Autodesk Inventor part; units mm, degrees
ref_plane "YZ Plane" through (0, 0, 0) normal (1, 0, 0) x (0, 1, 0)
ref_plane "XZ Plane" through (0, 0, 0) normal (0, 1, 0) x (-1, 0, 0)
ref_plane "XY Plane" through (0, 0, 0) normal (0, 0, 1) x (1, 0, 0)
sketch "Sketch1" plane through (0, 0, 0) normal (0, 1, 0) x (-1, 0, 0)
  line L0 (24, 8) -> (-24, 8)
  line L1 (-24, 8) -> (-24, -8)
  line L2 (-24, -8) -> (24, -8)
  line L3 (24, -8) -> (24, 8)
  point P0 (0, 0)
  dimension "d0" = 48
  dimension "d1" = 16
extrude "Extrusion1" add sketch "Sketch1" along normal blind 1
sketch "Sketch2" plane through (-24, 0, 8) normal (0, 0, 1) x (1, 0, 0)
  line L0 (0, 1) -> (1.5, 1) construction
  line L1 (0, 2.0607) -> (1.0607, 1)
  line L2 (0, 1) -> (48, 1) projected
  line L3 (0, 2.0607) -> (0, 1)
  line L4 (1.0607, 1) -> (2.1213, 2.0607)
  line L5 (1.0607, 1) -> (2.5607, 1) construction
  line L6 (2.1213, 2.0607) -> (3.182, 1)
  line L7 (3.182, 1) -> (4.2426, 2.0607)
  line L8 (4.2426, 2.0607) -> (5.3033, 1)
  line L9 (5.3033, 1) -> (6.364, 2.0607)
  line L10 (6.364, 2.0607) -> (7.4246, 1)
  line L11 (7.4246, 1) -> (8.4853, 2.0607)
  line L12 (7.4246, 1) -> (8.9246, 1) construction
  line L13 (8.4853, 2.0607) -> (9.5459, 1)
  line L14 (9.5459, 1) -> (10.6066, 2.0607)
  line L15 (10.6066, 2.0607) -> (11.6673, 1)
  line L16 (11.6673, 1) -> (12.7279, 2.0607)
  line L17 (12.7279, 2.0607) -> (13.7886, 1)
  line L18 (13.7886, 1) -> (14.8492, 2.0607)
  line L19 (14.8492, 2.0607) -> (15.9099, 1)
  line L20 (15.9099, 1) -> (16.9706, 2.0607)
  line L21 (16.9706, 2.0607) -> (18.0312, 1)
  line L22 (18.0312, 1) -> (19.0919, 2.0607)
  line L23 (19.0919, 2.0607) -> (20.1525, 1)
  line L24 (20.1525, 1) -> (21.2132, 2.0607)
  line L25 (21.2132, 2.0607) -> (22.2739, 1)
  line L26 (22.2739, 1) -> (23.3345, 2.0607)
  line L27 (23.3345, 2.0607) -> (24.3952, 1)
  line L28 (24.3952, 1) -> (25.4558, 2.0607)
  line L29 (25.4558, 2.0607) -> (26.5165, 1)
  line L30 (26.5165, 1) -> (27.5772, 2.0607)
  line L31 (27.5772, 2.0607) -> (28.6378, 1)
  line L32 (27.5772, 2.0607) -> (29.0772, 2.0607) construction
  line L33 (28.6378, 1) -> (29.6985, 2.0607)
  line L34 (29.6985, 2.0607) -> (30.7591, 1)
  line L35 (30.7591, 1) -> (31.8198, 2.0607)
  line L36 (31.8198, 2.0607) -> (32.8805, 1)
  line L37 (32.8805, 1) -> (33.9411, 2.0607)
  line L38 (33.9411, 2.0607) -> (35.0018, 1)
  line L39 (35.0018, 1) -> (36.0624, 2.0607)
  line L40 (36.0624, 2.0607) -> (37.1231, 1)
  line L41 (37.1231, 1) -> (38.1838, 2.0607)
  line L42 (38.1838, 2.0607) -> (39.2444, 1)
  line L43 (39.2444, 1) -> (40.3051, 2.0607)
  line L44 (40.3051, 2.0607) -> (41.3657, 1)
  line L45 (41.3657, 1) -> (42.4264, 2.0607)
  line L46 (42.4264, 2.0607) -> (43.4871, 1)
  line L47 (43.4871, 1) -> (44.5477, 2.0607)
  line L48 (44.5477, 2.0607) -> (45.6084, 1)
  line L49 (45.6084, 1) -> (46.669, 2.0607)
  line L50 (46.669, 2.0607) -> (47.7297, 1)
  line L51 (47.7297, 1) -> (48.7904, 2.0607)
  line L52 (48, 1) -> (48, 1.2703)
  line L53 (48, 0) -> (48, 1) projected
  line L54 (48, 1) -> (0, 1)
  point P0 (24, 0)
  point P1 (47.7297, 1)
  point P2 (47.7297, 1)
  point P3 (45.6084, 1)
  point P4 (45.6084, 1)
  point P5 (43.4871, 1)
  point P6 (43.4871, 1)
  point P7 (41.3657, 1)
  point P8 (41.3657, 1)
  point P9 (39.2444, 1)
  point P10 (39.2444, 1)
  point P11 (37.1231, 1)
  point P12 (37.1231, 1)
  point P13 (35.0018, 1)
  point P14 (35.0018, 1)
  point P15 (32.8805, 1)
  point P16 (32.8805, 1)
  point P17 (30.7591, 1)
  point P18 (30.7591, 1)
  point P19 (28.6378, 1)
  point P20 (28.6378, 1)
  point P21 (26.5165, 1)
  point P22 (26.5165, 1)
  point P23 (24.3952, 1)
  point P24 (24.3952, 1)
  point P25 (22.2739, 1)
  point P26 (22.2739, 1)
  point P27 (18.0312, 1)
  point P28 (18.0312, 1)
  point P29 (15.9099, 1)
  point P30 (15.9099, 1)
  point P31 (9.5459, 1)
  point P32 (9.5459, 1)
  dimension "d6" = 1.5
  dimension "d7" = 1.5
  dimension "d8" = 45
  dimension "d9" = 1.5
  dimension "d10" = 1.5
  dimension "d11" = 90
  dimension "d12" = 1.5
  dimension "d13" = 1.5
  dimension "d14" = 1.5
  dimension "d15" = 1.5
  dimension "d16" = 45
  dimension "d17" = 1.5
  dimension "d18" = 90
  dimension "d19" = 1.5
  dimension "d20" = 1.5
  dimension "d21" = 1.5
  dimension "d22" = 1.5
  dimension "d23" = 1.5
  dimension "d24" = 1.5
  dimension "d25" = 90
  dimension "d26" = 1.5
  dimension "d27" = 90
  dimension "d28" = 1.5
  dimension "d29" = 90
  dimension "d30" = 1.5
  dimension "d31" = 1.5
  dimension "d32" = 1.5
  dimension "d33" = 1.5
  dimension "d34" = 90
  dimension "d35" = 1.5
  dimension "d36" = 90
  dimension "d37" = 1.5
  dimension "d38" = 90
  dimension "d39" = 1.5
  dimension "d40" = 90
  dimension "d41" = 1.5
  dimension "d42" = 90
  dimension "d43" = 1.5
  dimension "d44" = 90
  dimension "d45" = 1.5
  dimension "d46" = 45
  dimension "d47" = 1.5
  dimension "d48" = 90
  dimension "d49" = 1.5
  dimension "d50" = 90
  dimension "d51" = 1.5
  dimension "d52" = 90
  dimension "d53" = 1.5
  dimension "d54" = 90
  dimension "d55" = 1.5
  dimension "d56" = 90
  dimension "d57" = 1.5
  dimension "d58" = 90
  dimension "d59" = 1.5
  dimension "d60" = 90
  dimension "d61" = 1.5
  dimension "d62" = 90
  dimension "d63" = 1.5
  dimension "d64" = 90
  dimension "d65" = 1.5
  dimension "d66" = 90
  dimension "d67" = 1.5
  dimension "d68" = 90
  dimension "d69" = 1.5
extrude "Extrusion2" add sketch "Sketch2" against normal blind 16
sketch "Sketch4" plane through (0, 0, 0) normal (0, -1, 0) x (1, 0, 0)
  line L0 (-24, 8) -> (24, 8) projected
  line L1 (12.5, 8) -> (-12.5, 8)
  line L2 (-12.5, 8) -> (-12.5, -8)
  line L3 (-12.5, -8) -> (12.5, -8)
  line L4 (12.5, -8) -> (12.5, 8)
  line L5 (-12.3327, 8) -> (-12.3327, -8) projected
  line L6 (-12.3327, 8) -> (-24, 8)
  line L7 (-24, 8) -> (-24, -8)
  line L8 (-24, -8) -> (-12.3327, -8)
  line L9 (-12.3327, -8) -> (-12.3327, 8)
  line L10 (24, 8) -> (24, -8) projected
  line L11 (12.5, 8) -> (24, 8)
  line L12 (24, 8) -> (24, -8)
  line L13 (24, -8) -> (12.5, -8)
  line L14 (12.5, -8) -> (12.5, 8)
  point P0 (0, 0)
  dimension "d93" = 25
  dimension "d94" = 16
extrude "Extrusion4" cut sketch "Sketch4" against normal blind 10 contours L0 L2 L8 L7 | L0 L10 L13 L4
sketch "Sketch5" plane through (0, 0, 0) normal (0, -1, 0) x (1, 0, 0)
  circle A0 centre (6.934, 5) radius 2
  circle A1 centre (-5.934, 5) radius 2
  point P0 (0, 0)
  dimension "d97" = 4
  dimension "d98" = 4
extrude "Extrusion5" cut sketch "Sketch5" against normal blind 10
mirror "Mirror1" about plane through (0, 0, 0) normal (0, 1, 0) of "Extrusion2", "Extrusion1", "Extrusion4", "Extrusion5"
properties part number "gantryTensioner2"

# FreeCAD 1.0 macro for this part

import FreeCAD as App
import Part
import Sketcher
Q = App.Units.Quantity

doc = App.newDocument("Part")
params = doc.addObject("Spreadsheet::Sheet", "Params")
for row, (alias, value) in enumerate([
    ("sketch1_width", "48 mm"),
    ("sketch1_height", "16 mm"),
    ("pad1_length", "1 mm"),
    ("sketch2_length", "1.5 mm"),
    ("pad2_length", "16 mm"),
    ("sketch3_height", "16 mm"),
    ("sketch3_width", "11.5 mm"),
    ("pocket1_length", "10 mm"),
    ("sketch4_diameter", "4 mm"),
    ("pocket2_length", "10 mm"),
], start=1):
    params.set(f"A{row}", alias)
    params.set(f"B{row}", "=" + value)
    params.setAlias(f"B{row}", alias)

body = doc.addObject("PartDesign::Body", "Body")

# Sketch on XZ plane
sketch1 = body.newObject("Sketcher::SketchObject", "Sketch")
sketch1.AttachmentSupport = (doc.getObject("XZ_Plane"), [""])
sketch1.MapMode = "FlatFace"
sketch1.addGeometry([
    Part.LineSegment(App.Vector(-24, -8, 0), App.Vector(-24, 8, 0)),
    Part.LineSegment(App.Vector(-24, 8, 0), App.Vector(24, 8, 0)),
    Part.LineSegment(App.Vector(24, 8, 0), App.Vector(24, -8, 0)),
    Part.LineSegment(App.Vector(24, -8, 0), App.Vector(-24, -8, 0)),
], False)
sketch1.addConstraint([
    Sketcher.Constraint("Coincident", 0, 2, 1, 1),
    Sketcher.Constraint("Coincident", 1, 2, 2, 1),
    Sketcher.Constraint("Coincident", 2, 2, 3, 1),
    Sketcher.Constraint("Coincident", 3, 2, 0, 1),
    Sketcher.Constraint("Vertical", 0),
    Sketcher.Constraint("Horizontal", 1),
    Sketcher.Constraint("Vertical", 2),
    Sketcher.Constraint("Horizontal", 3),
    Sketcher.Constraint("Symmetric", 0, 2, 2, 2, -1, 1),
    Sketcher.Constraint("DistanceX", 1, 1, 1, 2, Q("48 mm")),
    Sketcher.Constraint("DistanceY", 0, 1, 0, 2, Q("16 mm")),
])
sketch1.setExpression("Constraints[9]", "Params.sketch1_width")
sketch1.setExpression("Constraints[10]", "Params.sketch1_height")
pad1 = body.newObject("PartDesign::Pad", "Pad")
pad1.Profile = sketch1
pad1.setExpression("Length", "Params.pad1_length")
pad1.Reversed = True

# Sketch on XY plane
sketch2 = body.newObject("Sketcher::SketchObject", "Sketch001")
sketch2.AttachmentSupport = (doc.getObject("XY_Plane"), [""])
sketch2.MapMode = "FlatFace"
sketch2.AttachmentOffset = App.Placement(App.Vector(0, 0, 8), App.Rotation())
sketch2.addGeometry([
    Part.LineSegment(App.Vector(24, 1.2703, 0), App.Vector(23.7297, 1, 0)),  # 0
    Part.LineSegment(App.Vector(23.7297, 1, 0), App.Vector(24, 1, 0)),  # 1
    Part.LineSegment(App.Vector(24, 1, 0), App.Vector(24, 1.2703, 0)),  # 2
    Part.LineSegment(App.Vector(22.669, 2.0607, 0), App.Vector(21.6084, 1, 0)),  # 3
    Part.LineSegment(App.Vector(21.6084, 1, 0), App.Vector(23.7297, 1, 0)),  # 4
    Part.LineSegment(App.Vector(23.7297, 1, 0), App.Vector(22.669, 2.0607, 0)),  # 5
    Part.LineSegment(App.Vector(20.5477, 2.0607, 0), App.Vector(19.4871, 1, 0)),  # 6
    Part.LineSegment(App.Vector(19.4871, 1, 0), App.Vector(21.6084, 1, 0)),  # 7
    Part.LineSegment(App.Vector(21.6084, 1, 0), App.Vector(20.5477, 2.0607, 0)),  # 8
    Part.LineSegment(App.Vector(18.4264, 2.0607, 0), App.Vector(17.3657, 1, 0)),  # 9
    Part.LineSegment(App.Vector(17.3657, 1, 0), App.Vector(19.4871, 1, 0)),  # 10
    Part.LineSegment(App.Vector(19.4871, 1, 0), App.Vector(18.4264, 2.0607, 0)),  # 11
    Part.LineSegment(App.Vector(16.3051, 2.0607, 0), App.Vector(15.2444, 1, 0)),  # 12
    Part.LineSegment(App.Vector(15.2444, 1, 0), App.Vector(17.3657, 1, 0)),  # 13
    Part.LineSegment(App.Vector(17.3657, 1, 0), App.Vector(16.3051, 2.0607, 0)),  # 14
    Part.LineSegment(App.Vector(14.1838, 2.0607, 0), App.Vector(13.1231, 1, 0)),  # 15
    Part.LineSegment(App.Vector(13.1231, 1, 0), App.Vector(15.2444, 1, 0)),  # 16
    Part.LineSegment(App.Vector(15.2444, 1, 0), App.Vector(14.1838, 2.0607, 0)),  # 17
    Part.LineSegment(App.Vector(12.0624, 2.0607, 0), App.Vector(11.0018, 1, 0)),  # 18
    Part.LineSegment(App.Vector(11.0018, 1, 0), App.Vector(13.1231, 1, 0)),  # 19
    Part.LineSegment(App.Vector(13.1231, 1, 0), App.Vector(12.0624, 2.0607, 0)),  # 20
    Part.LineSegment(App.Vector(9.9411, 2.0607, 0), App.Vector(8.8805, 1, 0)),  # 21
    Part.LineSegment(App.Vector(8.8805, 1, 0), App.Vector(11.0018, 1, 0)),  # 22
    Part.LineSegment(App.Vector(11.0018, 1, 0), App.Vector(9.9411, 2.0607, 0)),  # 23
    Part.LineSegment(App.Vector(7.8198, 2.0607, 0), App.Vector(6.7591, 1, 0)),  # 24
    Part.LineSegment(App.Vector(6.7591, 1, 0), App.Vector(8.8805, 1, 0)),  # 25
    Part.LineSegment(App.Vector(8.8805, 1, 0), App.Vector(7.8198, 2.0607, 0)),  # 26
    Part.LineSegment(App.Vector(5.6985, 2.0607, 0), App.Vector(4.6378, 1, 0)),  # 27
    Part.LineSegment(App.Vector(4.6378, 1, 0), App.Vector(6.7591, 1, 0)),  # 28
    Part.LineSegment(App.Vector(6.7591, 1, 0), App.Vector(5.6985, 2.0607, 0)),  # 29
    Part.LineSegment(App.Vector(3.5772, 2.0607, 0), App.Vector(2.5165, 1, 0)),  # 30
    Part.LineSegment(App.Vector(2.5165, 1, 0), App.Vector(4.6378, 1, 0)),  # 31
    Part.LineSegment(App.Vector(4.6378, 1, 0), App.Vector(3.5772, 2.0607, 0)),  # 32
    Part.LineSegment(App.Vector(1.4558, 2.0607, 0), App.Vector(0.3952, 1, 0)),  # 33
    Part.LineSegment(App.Vector(0.3952, 1, 0), App.Vector(2.5165, 1, 0)),  # 34
    Part.LineSegment(App.Vector(2.5165, 1, 0), App.Vector(1.4558, 2.0607, 0)),  # 35
    Part.LineSegment(App.Vector(-0.6655, 2.0607, 0), App.Vector(-1.7261, 1, 0)),  # 36
    Part.LineSegment(App.Vector(-1.7261, 1, 0), App.Vector(0.3952, 1, 0)),  # 37
    Part.LineSegment(App.Vector(0.3952, 1, 0), App.Vector(-0.6655, 2.0607, 0)),  # 38
    Part.LineSegment(App.Vector(-2.7868, 2.0607, 0), App.Vector(-3.8475, 1, 0)),  # 39
    Part.LineSegment(App.Vector(-3.8475, 1, 0), App.Vector(-1.7261, 1, 0)),  # 40
    Part.LineSegment(App.Vector(-1.7261, 1, 0), App.Vector(-2.7868, 2.0607, 0)),  # 41
    Part.LineSegment(App.Vector(-4.9081, 2.0607, 0), App.Vector(-5.9688, 1, 0)),  # 42
    Part.LineSegment(App.Vector(-5.9688, 1, 0), App.Vector(-3.8475, 1, 0)),  # 43
    Part.LineSegment(App.Vector(-3.8475, 1, 0), App.Vector(-4.9081, 2.0607, 0)),  # 44
    Part.LineSegment(App.Vector(-7.0294, 2.0607, 0), App.Vector(-8.0901, 1, 0)),  # 45
    Part.LineSegment(App.Vector(-8.0901, 1, 0), App.Vector(-5.9688, 1, 0)),  # 46
    Part.LineSegment(App.Vector(-5.9688, 1, 0), App.Vector(-7.0294, 2.0607, 0)),  # 47
    Part.LineSegment(App.Vector(-9.1508, 2.0607, 0), App.Vector(-10.2114, 1, 0)),  # 48
    Part.LineSegment(App.Vector(-10.2114, 1, 0), App.Vector(-8.0901, 1, 0)),  # 49
    Part.LineSegment(App.Vector(-8.0901, 1, 0), App.Vector(-9.1508, 2.0607, 0)),  # 50
    Part.LineSegment(App.Vector(-11.2721, 2.0607, 0), App.Vector(-12.3327, 1, 0)),  # 51
    Part.LineSegment(App.Vector(-12.3327, 1, 0), App.Vector(-10.2114, 1, 0)),  # 52
    Part.LineSegment(App.Vector(-10.2114, 1, 0), App.Vector(-11.2721, 2.0607, 0)),  # 53
    Part.LineSegment(App.Vector(-13.3934, 2.0607, 0), App.Vector(-14.4541, 1, 0)),  # 54
    Part.LineSegment(App.Vector(-14.4541, 1, 0), App.Vector(-12.3327, 1, 0)),  # 55
    Part.LineSegment(App.Vector(-12.3327, 1, 0), App.Vector(-13.3934, 2.0607, 0)),  # 56
    Part.LineSegment(App.Vector(-15.5147, 2.0607, 0), App.Vector(-16.5754, 1, 0)),  # 57
    Part.LineSegment(App.Vector(-16.5754, 1, 0), App.Vector(-14.4541, 1, 0)),  # 58
    Part.LineSegment(App.Vector(-14.4541, 1, 0), App.Vector(-15.5147, 2.0607, 0)),  # 59
    Part.LineSegment(App.Vector(-17.636, 2.0607, 0), App.Vector(-18.6967, 1, 0)),  # 60
    Part.LineSegment(App.Vector(-18.6967, 1, 0), App.Vector(-16.5754, 1, 0)),  # 61
    Part.LineSegment(App.Vector(-16.5754, 1, 0), App.Vector(-17.636, 2.0607, 0)),  # 62
    Part.LineSegment(App.Vector(-19.7574, 2.0607, 0), App.Vector(-20.818, 1, 0)),  # 63
    Part.LineSegment(App.Vector(-20.818, 1, 0), App.Vector(-18.6967, 1, 0)),  # 64
    Part.LineSegment(App.Vector(-18.6967, 1, 0), App.Vector(-19.7574, 2.0607, 0)),  # 65
    Part.LineSegment(App.Vector(-21.8787, 2.0607, 0), App.Vector(-22.9393, 1, 0)),  # 66
    Part.LineSegment(App.Vector(-22.9393, 1, 0), App.Vector(-20.818, 1, 0)),  # 67
    Part.LineSegment(App.Vector(-20.818, 1, 0), App.Vector(-21.8787, 2.0607, 0)),  # 68
    Part.LineSegment(App.Vector(-22.9393, 1, 0), App.Vector(-24, 2.0607, 0)),  # 69
    Part.LineSegment(App.Vector(-24, 2.0607, 0), App.Vector(-24, 1, 0)),  # 70
    Part.LineSegment(App.Vector(-24, 1, 0), App.Vector(-22.9393, 1, 0)),  # 71
], False)
sketch2.addConstraint([
    Sketcher.Constraint("Coincident", 0, 2, 1, 1),
    Sketcher.Constraint("Coincident", 1, 2, 2, 1),
    Sketcher.Constraint("Coincident", 2, 2, 0, 1),
    Sketcher.Constraint("Coincident", 3, 2, 4, 1),
    Sketcher.Constraint("Coincident", 4, 2, 5, 1),
    Sketcher.Constraint("Coincident", 5, 2, 3, 1),
    Sketcher.Constraint("Coincident", 6, 2, 7, 1),
    Sketcher.Constraint("Coincident", 7, 2, 8, 1),
    Sketcher.Constraint("Coincident", 8, 2, 6, 1),
    Sketcher.Constraint("Coincident", 9, 2, 10, 1),
    Sketcher.Constraint("Coincident", 10, 2, 11, 1),
    Sketcher.Constraint("Coincident", 11, 2, 9, 1),
    Sketcher.Constraint("Coincident", 12, 2, 13, 1),
    Sketcher.Constraint("Coincident", 13, 2, 14, 1),
    Sketcher.Constraint("Coincident", 14, 2, 12, 1),
    Sketcher.Constraint("Coincident", 15, 2, 16, 1),
    Sketcher.Constraint("Coincident", 16, 2, 17, 1),
    Sketcher.Constraint("Coincident", 17, 2, 15, 1),
    Sketcher.Constraint("Coincident", 18, 2, 19, 1),
    Sketcher.Constraint("Coincident", 19, 2, 20, 1),
    Sketcher.Constraint("Coincident", 20, 2, 18, 1),
    Sketcher.Constraint("Coincident", 21, 2, 22, 1),
    Sketcher.Constraint("Coincident", 22, 2, 23, 1),
    Sketcher.Constraint("Coincident", 23, 2, 21, 1),
    Sketcher.Constraint("Coincident", 24, 2, 25, 1),
    Sketcher.Constraint("Coincident", 25, 2, 26, 1),
    Sketcher.Constraint("Coincident", 26, 2, 24, 1),
    Sketcher.Constraint("Coincident", 27, 2, 28, 1),
    Sketcher.Constraint("Coincident", 28, 2, 29, 1),
    Sketcher.Constraint("Coincident", 29, 2, 27, 1),
    Sketcher.Constraint("Coincident", 30, 2, 31, 1),
    Sketcher.Constraint("Coincident", 31, 2, 32, 1),
    Sketcher.Constraint("Coincident", 32, 2, 30, 1),
    Sketcher.Constraint("Coincident", 33, 2, 34, 1),
    Sketcher.Constraint("Coincident", 34, 2, 35, 1),
    Sketcher.Constraint("Coincident", 35, 2, 33, 1),
    Sketcher.Constraint("Coincident", 36, 2, 37, 1),
    Sketcher.Constraint("Coincident", 37, 2, 38, 1),
    Sketcher.Constraint("Coincident", 38, 2, 36, 1),
    Sketcher.Constraint("Coincident", 39, 2, 40, 1),
    Sketcher.Constraint("Coincident", 40, 2, 41, 1),
    Sketcher.Constraint("Coincident", 41, 2, 39, 1),
    Sketcher.Constraint("Coincident", 42, 2, 43, 1),
    Sketcher.Constraint("Coincident", 43, 2, 44, 1),
    Sketcher.Constraint("Coincident", 44, 2, 42, 1),
    Sketcher.Constraint("Coincident", 45, 2, 46, 1),
    Sketcher.Constraint("Coincident", 46, 2, 47, 1),
    Sketcher.Constraint("Coincident", 47, 2, 45, 1),
    Sketcher.Constraint("Coincident", 48, 2, 49, 1),
    Sketcher.Constraint("Coincident", 49, 2, 50, 1),
    Sketcher.Constraint("Coincident", 50, 2, 48, 1),
    Sketcher.Constraint("Coincident", 51, 2, 52, 1),
    Sketcher.Constraint("Coincident", 52, 2, 53, 1),
    Sketcher.Constraint("Coincident", 53, 2, 51, 1),
    Sketcher.Constraint("Coincident", 54, 2, 55, 1),
    Sketcher.Constraint("Coincident", 55, 2, 56, 1),
    Sketcher.Constraint("Coincident", 56, 2, 54, 1),
    Sketcher.Constraint("Coincident", 57, 2, 58, 1),
    Sketcher.Constraint("Coincident", 58, 2, 59, 1),
    Sketcher.Constraint("Coincident", 59, 2, 57, 1),
    Sketcher.Constraint("Coincident", 60, 2, 61, 1),
    Sketcher.Constraint("Coincident", 61, 2, 62, 1),
    Sketcher.Constraint("Coincident", 62, 2, 60, 1),
    Sketcher.Constraint("Coincident", 63, 2, 64, 1),
    Sketcher.Constraint("Coincident", 64, 2, 65, 1),
    Sketcher.Constraint("Coincident", 65, 2, 63, 1),
    Sketcher.Constraint("Coincident", 66, 2, 67, 1),
    Sketcher.Constraint("Coincident", 67, 2, 68, 1),
    Sketcher.Constraint("Coincident", 68, 2, 66, 1),
    Sketcher.Constraint("Coincident", 69, 2, 70, 1),
    Sketcher.Constraint("Coincident", 70, 2, 71, 1),
    Sketcher.Constraint("Coincident", 71, 2, 69, 1),
    Sketcher.Constraint("Horizontal", 1),
    Sketcher.Constraint("Vertical", 2),
    Sketcher.Constraint("Horizontal", 4),
    Sketcher.Constraint("Horizontal", 7),
    Sketcher.Constraint("Horizontal", 10),
    Sketcher.Constraint("Horizontal", 13),
    Sketcher.Constraint("Horizontal", 16),
    Sketcher.Constraint("Horizontal", 19),
    Sketcher.Constraint("Horizontal", 22),
    Sketcher.Constraint("Horizontal", 25),
    Sketcher.Constraint("Horizontal", 28),
    Sketcher.Constraint("Horizontal", 31),
    Sketcher.Constraint("Horizontal", 34),
    Sketcher.Constraint("Horizontal", 37),
    Sketcher.Constraint("Horizontal", 40),
    Sketcher.Constraint("Horizontal", 43),
    Sketcher.Constraint("Horizontal", 46),
    Sketcher.Constraint("Horizontal", 49),
    Sketcher.Constraint("Horizontal", 52),
    Sketcher.Constraint("Horizontal", 55),
    Sketcher.Constraint("Horizontal", 58),
    Sketcher.Constraint("Horizontal", 61),
    Sketcher.Constraint("Horizontal", 64),
    Sketcher.Constraint("Horizontal", 67),
    Sketcher.Constraint("Vertical", 70),
    Sketcher.Constraint("Horizontal", 71),
    Sketcher.Constraint("Coincident", 4, 2, 0, 2),
    Sketcher.Constraint("Coincident", 7, 2, 3, 2),
    Sketcher.Constraint("Coincident", 10, 2, 6, 2),
    Sketcher.Constraint("Coincident", 13, 2, 9, 2),
    Sketcher.Constraint("Coincident", 16, 2, 12, 2),
    Sketcher.Constraint("Coincident", 19, 2, 15, 2),
    Sketcher.Constraint("Coincident", 22, 2, 18, 2),
    Sketcher.Constraint("Coincident", 25, 2, 21, 2),
    Sketcher.Constraint("Coincident", 28, 2, 24, 2),
    Sketcher.Constraint("Coincident", 31, 2, 27, 2),
    Sketcher.Constraint("Coincident", 34, 2, 30, 2),
    Sketcher.Constraint("Coincident", 37, 2, 33, 2),
    Sketcher.Constraint("Coincident", 40, 2, 36, 2),
    Sketcher.Constraint("Coincident", 43, 2, 39, 2),
    Sketcher.Constraint("Coincident", 46, 2, 42, 2),
    Sketcher.Constraint("Coincident", 49, 2, 45, 2),
    Sketcher.Constraint("Coincident", 52, 2, 48, 2),
    Sketcher.Constraint("Coincident", 55, 2, 51, 2),
    Sketcher.Constraint("Coincident", 58, 2, 54, 2),
    Sketcher.Constraint("Coincident", 61, 2, 57, 2),
    Sketcher.Constraint("Coincident", 64, 2, 60, 2),
    Sketcher.Constraint("Coincident", 67, 2, 63, 2),
    Sketcher.Constraint("Coincident", 71, 2, 66, 2),
    Sketcher.Constraint("Parallel", 0, 3),
    Sketcher.Constraint("Perpendicular", 3, 5),
    Sketcher.Constraint("Perpendicular", 5, 6),
    Sketcher.Constraint("Perpendicular", 6, 8),
    Sketcher.Constraint("Perpendicular", 8, 9),
    Sketcher.Constraint("Perpendicular", 9, 11),
    Sketcher.Constraint("Perpendicular", 11, 12),
    Sketcher.Constraint("Perpendicular", 12, 14),
    Sketcher.Constraint("Perpendicular", 14, 15),
    Sketcher.Constraint("Perpendicular", 15, 17),
    Sketcher.Constraint("Perpendicular", 17, 18),
    Sketcher.Constraint("Perpendicular", 18, 20),
    Sketcher.Constraint("Perpendicular", 20, 21),
    Sketcher.Constraint("Perpendicular", 21, 23),
    Sketcher.Constraint("Perpendicular", 23, 24),
    Sketcher.Constraint("Perpendicular", 24, 26),
    Sketcher.Constraint("Perpendicular", 26, 27),
    Sketcher.Constraint("Perpendicular", 27, 29),
    Sketcher.Constraint("Perpendicular", 29, 30),
    Sketcher.Constraint("Perpendicular", 30, 32),
    Sketcher.Constraint("Perpendicular", 32, 33),
    Sketcher.Constraint("Perpendicular", 33, 35),
    Sketcher.Constraint("Perpendicular", 35, 36),
    Sketcher.Constraint("Perpendicular", 36, 38),
    Sketcher.Constraint("Perpendicular", 38, 39),
    Sketcher.Constraint("Perpendicular", 39, 41),
    Sketcher.Constraint("Perpendicular", 41, 42),
    Sketcher.Constraint("Perpendicular", 42, 44),
    Sketcher.Constraint("Perpendicular", 44, 45),
    Sketcher.Constraint("Perpendicular", 45, 47),
    Sketcher.Constraint("Perpendicular", 47, 48),
    Sketcher.Constraint("Perpendicular", 48, 50),
    Sketcher.Constraint("Perpendicular", 50, 51),
    Sketcher.Constraint("Perpendicular", 51, 53),
    Sketcher.Constraint("Perpendicular", 53, 54),
    Sketcher.Constraint("Perpendicular", 54, 56),
    Sketcher.Constraint("Perpendicular", 56, 57),
    Sketcher.Constraint("Perpendicular", 57, 59),
    Sketcher.Constraint("Perpendicular", 59, 60),
    Sketcher.Constraint("Perpendicular", 60, 62),
    Sketcher.Constraint("Perpendicular", 62, 63),
    Sketcher.Constraint("Perpendicular", 63, 65),
    Sketcher.Constraint("Perpendicular", 65, 66),
    Sketcher.Constraint("Perpendicular", 66, 68),
    Sketcher.Constraint("Parallel", 68, 69),
    Sketcher.Constraint("Horizontal", 5, 2, 8, 2),
    Sketcher.Constraint("Horizontal", 8, 2, 11, 2),
    Sketcher.Constraint("Horizontal", 11, 2, 14, 2),
    Sketcher.Constraint("Horizontal", 14, 2, 17, 2),
    Sketcher.Constraint("Horizontal", 17, 2, 20, 2),
    Sketcher.Constraint("Horizontal", 20, 2, 23, 2),
    Sketcher.Constraint("Horizontal", 23, 2, 26, 2),
    Sketcher.Constraint("Horizontal", 26, 2, 29, 2),
    Sketcher.Constraint("Horizontal", 29, 2, 32, 2),
    Sketcher.Constraint("Horizontal", 32, 2, 35, 2),
    Sketcher.Constraint("Horizontal", 35, 2, 38, 2),
    Sketcher.Constraint("Horizontal", 38, 2, 41, 2),
    Sketcher.Constraint("Horizontal", 41, 2, 44, 2),
    Sketcher.Constraint("Horizontal", 44, 2, 47, 2),
    Sketcher.Constraint("Horizontal", 47, 2, 50, 2),
    Sketcher.Constraint("Horizontal", 50, 2, 53, 2),
    Sketcher.Constraint("Horizontal", 53, 2, 56, 2),
    Sketcher.Constraint("Horizontal", 56, 2, 59, 2),
    Sketcher.Constraint("Horizontal", 59, 2, 62, 2),
    Sketcher.Constraint("Horizontal", 62, 2, 65, 2),
    Sketcher.Constraint("Horizontal", 65, 2, 68, 2),
    Sketcher.Constraint("Horizontal", 68, 2, 69, 2),
    Sketcher.Constraint("Equal", 1, 2),
    Sketcher.Constraint("Distance", 3, Q("1.5 mm")),
    Sketcher.Constraint("DistanceY", -1, 1, 0, 2, Q("1 mm")),
    Sketcher.Constraint("DistanceX", -1, 1, 1, 2, Q("24 mm")),
    Sketcher.Constraint("DistanceX", 69, 2, -1, 1, Q("24 mm")),
])
sketch2.setExpression("Constraints[189]", "Params.sketch2_length")
pad2 = body.newObject("PartDesign::Pad", "Pad001")
pad2.Profile = sketch2
pad2.setExpression("Length", "Params.pad2_length")
pad2.Reversed = True

# Sketch on XZ plane
sketch3 = body.newObject("Sketcher::SketchObject", "Sketch002")
sketch3.AttachmentSupport = (doc.getObject("XZ_Plane"), [""])
sketch3.MapMode = "FlatFace"
sketch3.addGeometry([
    Part.LineSegment(App.Vector(-12.5, 8, 0), App.Vector(-24, 8, 0)),  # 0
    Part.LineSegment(App.Vector(-24, 8, 0), App.Vector(-24, -8, 0)),  # 1
    Part.LineSegment(App.Vector(-24, -8, 0), App.Vector(-12.5, -8, 0)),  # 2
    Part.LineSegment(App.Vector(-12.5, -8, 0), App.Vector(-12.5, 8, 0)),  # 3
    Part.LineSegment(App.Vector(24, 8, 0), App.Vector(12.5, 8, 0)),  # 4
    Part.LineSegment(App.Vector(12.5, 8, 0), App.Vector(12.5, -8, 0)),  # 5
    Part.LineSegment(App.Vector(12.5, -8, 0), App.Vector(24, -8, 0)),  # 6
    Part.LineSegment(App.Vector(24, -8, 0), App.Vector(24, 8, 0)),  # 7
], False)
sketch3.addConstraint([
    Sketcher.Constraint("Coincident", 0, 2, 1, 1),
    Sketcher.Constraint("Coincident", 1, 2, 2, 1),
    Sketcher.Constraint("Coincident", 2, 2, 3, 1),
    Sketcher.Constraint("Coincident", 3, 2, 0, 1),
    Sketcher.Constraint("Coincident", 4, 2, 5, 1),
    Sketcher.Constraint("Coincident", 5, 2, 6, 1),
    Sketcher.Constraint("Coincident", 6, 2, 7, 1),
    Sketcher.Constraint("Coincident", 7, 2, 4, 1),
    Sketcher.Constraint("Horizontal", 0),
    Sketcher.Constraint("Vertical", 1),
    Sketcher.Constraint("Horizontal", 2),
    Sketcher.Constraint("Vertical", 3),
    Sketcher.Constraint("Horizontal", 4),
    Sketcher.Constraint("Vertical", 5),
    Sketcher.Constraint("Horizontal", 6),
    Sketcher.Constraint("Vertical", 7),
    Sketcher.Constraint("Symmetric", 2, 2, 4, 2, -1, 1),
    Sketcher.Constraint("Symmetric", 0, 2, 6, 2, -1, 1),
    Sketcher.Constraint("Horizontal", 3, 2, 4, 2),
    Sketcher.Constraint("DistanceY", 1, 2, 1, 1, Q("16 mm")),
    Sketcher.Constraint("DistanceX", 3, 2, 4, 2, Q("25 mm")),
    Sketcher.Constraint("DistanceX", 0, 2, 0, 1, Q("11.5 mm")),
])
sketch3.setExpression("Constraints[19]", "Params.sketch3_height")
sketch3.setExpression("Constraints[21]", "Params.sketch3_width")
pocket1 = body.newObject("PartDesign::Pocket", "Pocket")
pocket1.Profile = sketch3
pocket1.setExpression("Length", "Params.pocket1_length")

# Sketch on XZ plane
sketch4 = body.newObject("Sketcher::SketchObject", "Sketch003")
sketch4.AttachmentSupport = (doc.getObject("XZ_Plane"), [""])
sketch4.MapMode = "FlatFace"
sketch4.addGeometry([
    Part.Circle(App.Vector(6.934, 5, 0), App.Vector(0, 0, 1), 2),
    Part.Circle(App.Vector(-5.934, 5, 0), App.Vector(0, 0, 1), 2),
], False)
sketch4.addConstraint([
    Sketcher.Constraint("Equal", 0, 1),
    Sketcher.Constraint("Horizontal", 0, 3, 1, 3),
    Sketcher.Constraint("Diameter", 0, Q("4 mm")),
    Sketcher.Constraint("DistanceY", -1, 1, 0, 3, Q("5 mm")),
    Sketcher.Constraint("DistanceX", -1, 1, 0, 3, Q("6.934 mm")),
    Sketcher.Constraint("DistanceX", 1, 3, -1, 1, Q("5.934 mm")),
])
sketch4.setExpression("Constraints[2]", "Params.sketch4_diameter")
pocket2 = body.newObject("PartDesign::Pocket", "Pocket001")
pocket2.Profile = sketch4
pocket2.setExpression("Length", "Params.pocket2_length")
doc.recompute()

mirrored = body.newObject("PartDesign::Mirrored", "Mirrored")
mirrored.Originals = [pad2, pad1, pocket1, pocket2]
mirrored.MirrorPlane = (doc.getObject("XZ_Plane"), [""])
body.Tip = mirrored

doc.recompute()
